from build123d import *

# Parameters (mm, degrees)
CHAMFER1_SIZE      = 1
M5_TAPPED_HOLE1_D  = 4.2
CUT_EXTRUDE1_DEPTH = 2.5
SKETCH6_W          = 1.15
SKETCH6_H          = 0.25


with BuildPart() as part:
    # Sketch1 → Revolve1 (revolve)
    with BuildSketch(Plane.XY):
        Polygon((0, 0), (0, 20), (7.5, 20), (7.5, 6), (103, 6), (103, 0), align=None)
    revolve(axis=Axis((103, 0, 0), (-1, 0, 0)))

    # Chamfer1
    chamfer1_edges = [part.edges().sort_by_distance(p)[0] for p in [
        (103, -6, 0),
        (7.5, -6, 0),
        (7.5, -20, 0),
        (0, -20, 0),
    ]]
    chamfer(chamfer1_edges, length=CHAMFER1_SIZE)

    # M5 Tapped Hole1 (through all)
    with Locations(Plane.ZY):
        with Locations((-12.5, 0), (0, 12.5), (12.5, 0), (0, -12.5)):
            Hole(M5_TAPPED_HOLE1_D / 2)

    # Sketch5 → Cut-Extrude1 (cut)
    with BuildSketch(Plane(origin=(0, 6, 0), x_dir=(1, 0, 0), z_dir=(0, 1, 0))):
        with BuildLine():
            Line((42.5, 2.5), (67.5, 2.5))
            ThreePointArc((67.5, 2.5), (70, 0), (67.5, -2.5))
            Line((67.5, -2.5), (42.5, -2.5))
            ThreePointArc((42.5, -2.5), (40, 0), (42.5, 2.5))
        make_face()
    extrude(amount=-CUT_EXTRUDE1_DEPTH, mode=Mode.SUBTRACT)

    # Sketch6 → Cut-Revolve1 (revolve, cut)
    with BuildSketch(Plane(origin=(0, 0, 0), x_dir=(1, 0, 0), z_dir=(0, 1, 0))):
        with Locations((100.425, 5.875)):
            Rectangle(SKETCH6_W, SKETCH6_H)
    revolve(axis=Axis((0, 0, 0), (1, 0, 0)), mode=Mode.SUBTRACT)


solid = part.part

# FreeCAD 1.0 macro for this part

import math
import FreeCAD as App
import Part
import Sketcher
from FreeCAD import Vector
Q = App.Units.Quantity


def edges_at(feature, points):
    """Names of the edges that pass closest to the given points."""
    edges = feature.Shape.Edges
    near = lambda p: min(range(len(edges)), key=lambda i: edges[i].distToShape(Part.Vertex(*p))[0])
    return sorted({f"Edge{near(p) + 1}" for p in points})


def add_polygon(sketch, points):
    """Adds a closed chain of lines whose ends are joined by coincident constraints."""
    first, n = sketch.GeometryCount, len(points)
    for a, b in zip(points, points[1:] + points[:1]):
        sketch.addGeometry(Part.LineSegment(App.Vector(*a, 0), App.Vector(*b, 0)), False)
    for i in range(n):
        sketch.addConstraint(Sketcher.Constraint("Coincident", first + i, 2, first + (i + 1) % n, 1))

doc = App.newDocument("Part")
body = doc.addObject("PartDesign::Body", "Body")

# Sketch on XY plane
sketch1 = body.newObject("Sketcher::SketchObject", "Sketch")
sketch1.AttachmentSupport = (doc.getObject("XY_Plane"), [""])
sketch1.MapMode = "FlatFace"
add_polygon(sketch1, [(0, 20), (0, 0), (103, 0), (103, 6), (8, 6), (8, 20)])  # lines 0-5
sketch1.addConstraint(Sketcher.Constraint("Vertical", 0))
sketch1.addConstraint(Sketcher.Constraint("Horizontal", 1))
sketch1.addConstraint(Sketcher.Constraint("Vertical", 2))
sketch1.addConstraint(Sketcher.Constraint("Horizontal", 3))
sketch1.addConstraint(Sketcher.Constraint("Vertical", 4))
sketch1.addConstraint(Sketcher.Constraint("Horizontal", 5))
sketch1.addConstraint(Sketcher.Constraint("Coincident", 0, 2, -1, 1))
sketch1.addConstraint(Sketcher.Constraint("DistanceX", 1, 1, 1, 2, Q("103 mm")))
sketch1.addConstraint(Sketcher.Constraint("DistanceY", 0, 2, 0, 1, Q("20 mm")))
sketch1.addConstraint(Sketcher.Constraint("DistanceY", 2, 1, 2, 2, Q("6 mm")))
sketch1.addConstraint(Sketcher.Constraint("DistanceX", 3, 2, 3, 1, Q("95.5 mm")))
revolution = body.newObject("PartDesign::Revolution", "Revolution")
revolution.Profile = sketch1
revolution.ReferenceAxis = (sketch1, ["H_Axis"])
revolution.Angle = 360
doc.recompute()

chamfer = body.newObject("PartDesign::Chamfer", "Chamfer")
chamfer.Base = (revolution, edges_at(revolution, [
    (103, -6, 0),
    (7.5, -6, 0),
    (7.5, -20, 0),
    (0, -20, 0),
]))
chamfer.Size = 1

# Sketch on YZ plane
sketch2 = body.newObject("Sketcher::SketchObject", "Sketch001")
sketch2.AttachmentSupport = (doc.getObject("YZ_Plane"), [""])
sketch2.MapMode = "FlatFace"
sketch2.addGeometry(Part.Circle(Vector(0, -12.5, 0), Vector(0, 0, 1), 2.1), False)
sketch2.addGeometry(Part.Circle(Vector(12.5, 0, 0), Vector(0, 0, 1), 2.1), False)
sketch2.addGeometry(Part.Circle(Vector(0, 12.5, 0), Vector(0, 0, 1), 2.1), False)
sketch2.addGeometry(Part.Circle(Vector(-12.5, 0, 0), Vector(0, 0, 1), 2.1), False)
sketch2.addConstraint(Sketcher.Constraint("Equal", 0, 1))
sketch2.addConstraint(Sketcher.Constraint("Equal", 1, 2))
sketch2.addConstraint(Sketcher.Constraint("Equal", 2, 3))
sketch2.addConstraint(Sketcher.Constraint("Symmetric", 0, 3, 2, 3, -1, 1))
sketch2.addConstraint(Sketcher.Constraint("Symmetric", 1, 3, 3, 3, -1, 1))
sketch2.addConstraint(Sketcher.Constraint("PointOnObject", 0, 3, -2))
sketch2.addConstraint(Sketcher.Constraint("PointOnObject", 1, 3, -1))
sketch2.addConstraint(Sketcher.Constraint("Diameter", 0, Q("4.2 mm")))
sketch2.addConstraint(Sketcher.Constraint("DistanceY", 0, 3, 2, 3, Q("25 mm")))
sketch2.addConstraint(Sketcher.Constraint("DistanceX", 3, 3, 1, 3, Q("25 mm")))
doc.recompute()
hole = body.newObject("PartDesign::Hole", "Hole")
hole.Profile = sketch2
hole.ThreadType = "None"
hole.Diameter = 4.2
hole.DepthType = "ThroughAll"
hole.Reversed = True

# Sketch on XZ plane
sketch3 = body.newObject("Sketcher::SketchObject", "Sketch002")
sketch3.AttachmentSupport = (doc.getObject("XZ_Plane"), [""])
sketch3.MapMode = "FlatFace"
sketch3.AttachmentOffset = App.Placement(Vector(0, 0, -6), App.Rotation())
sketch3.addGeometry(Part.LineSegment(Vector(67.5, -2.5, 0), Vector(42.5, -2.5, 0)), False)
sketch3.addGeometry(Part.ArcOfCircle(Part.Circle(Vector(42.5, 0, 0), Vector(0, 0, 1), 2.5), math.radians(90), math.radians(270)), False)
sketch3.addGeometry(Part.LineSegment(Vector(42.5, 2.5, 0), Vector(67.5, 2.5, 0)), False)
sketch3.addGeometry(Part.ArcOfCircle(Part.Circle(Vector(67.5, 0, 0), Vector(0, 0, 1), 2.5), math.radians(-90), math.radians(90)), False)
sketch3.addConstraint(Sketcher.Constraint("Tangent", 0, 2, 1, 2))
sketch3.addConstraint(Sketcher.Constraint("Tangent", 1, 1, 2, 1))
sketch3.addConstraint(Sketcher.Constraint("Tangent", 2, 2, 3, 2))
sketch3.addConstraint(Sketcher.Constraint("Tangent", 3, 1, 0, 1))
sketch3.addConstraint(Sketcher.Constraint("Horizontal", 0))
sketch3.addConstraint(Sketcher.Constraint("Horizontal", 2))
sketch3.addConstraint(Sketcher.Constraint("PointOnObject", 1, 3, -1))
sketch3.addConstraint(Sketcher.Constraint("Radius", 1, Q("2.5 mm")))
sketch3.addConstraint(Sketcher.Constraint("DistanceX", 0, 2, 0, 1, Q("25 mm")))
sketch3.addConstraint(Sketcher.Constraint("DistanceX", -1, 1, 1, 3, Q("42.5 mm")))
pocket1 = body.newObject("PartDesign::Pocket", "Pocket")
pocket1.Profile = sketch3
pocket1.Length = 2.5
pocket1.Reversed = True

# Sketch on XZ plane
sketch4 = body.newObject("Sketcher::SketchObject", "Sketch003")
sketch4.AttachmentSupport = (doc.getObject("XZ_Plane"), [""])
sketch4.MapMode = "FlatFace"
add_polygon(sketch4, [(99.85, -6), (99.85, -5.75), (101, -5.75), (101, -6)])  # lines 0-3
sketch4.addConstraint(Sketcher.Constraint("Vertical", 0))
sketch4.addConstraint(Sketcher.Constraint("Horizontal", 1))
sketch4.addConstraint(Sketcher.Constraint("Vertical", 2))
sketch4.addConstraint(Sketcher.Constraint("Horizontal", 3))
sketch4.addConstraint(Sketcher.Constraint("DistanceX", -1, 1, 1, 2, Q("101 mm")))
sketch4.addConstraint(Sketcher.Constraint("DistanceY", 2, 2, -1, 1, Q("6 mm")))
sketch4.addConstraint(Sketcher.Constraint("DistanceX", 1, 1, 1, 2, Q("1.15 mm")))
sketch4.addConstraint(Sketcher.Constraint("DistanceY", 0, 1, 0, 2, Q("0.25 mm")))
groove = body.newObject("PartDesign::Groove", "Groove")
groove.Profile = sketch4
groove.ReferenceAxis = (sketch4, ["H_Axis"])
groove.Angle = 360

doc.recompute()
